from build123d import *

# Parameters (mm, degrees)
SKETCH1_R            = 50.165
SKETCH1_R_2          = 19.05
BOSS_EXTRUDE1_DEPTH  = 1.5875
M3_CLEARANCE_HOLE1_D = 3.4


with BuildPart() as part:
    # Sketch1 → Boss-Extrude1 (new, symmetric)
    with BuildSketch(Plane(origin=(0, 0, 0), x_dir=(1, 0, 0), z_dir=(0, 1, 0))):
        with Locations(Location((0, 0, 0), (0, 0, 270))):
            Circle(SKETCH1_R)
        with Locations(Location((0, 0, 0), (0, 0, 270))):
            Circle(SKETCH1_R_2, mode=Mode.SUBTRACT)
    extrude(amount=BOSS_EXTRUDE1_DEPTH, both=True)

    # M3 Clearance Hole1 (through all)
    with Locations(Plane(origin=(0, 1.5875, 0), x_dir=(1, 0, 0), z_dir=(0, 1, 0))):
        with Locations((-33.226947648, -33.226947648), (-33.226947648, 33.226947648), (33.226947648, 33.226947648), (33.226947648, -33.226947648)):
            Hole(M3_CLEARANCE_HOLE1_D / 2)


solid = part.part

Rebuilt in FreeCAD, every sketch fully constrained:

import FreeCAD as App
import Part
import Sketcher
Q = App.Units.Quantity

doc = App.newDocument("Part")
body = doc.addObject("PartDesign::Body", "Body")

# Sketch on XZ plane
sketch1 = body.newObject("Sketcher::SketchObject", "Sketch")
sketch1.AttachmentSupport = (doc.getObject("XZ_Plane"), [""])
sketch1.MapMode = "FlatFace"
sketch1.addGeometry(Part.Circle(App.Vector(0, 0, 0), App.Vector(0, 0, 1), 50), False)
sketch1.addGeometry(Part.Circle(App.Vector(0, 0, 0), App.Vector(0, 0, 1), 19), False)
sketch1.addConstraint(Sketcher.Constraint("Coincident", 0, 3, -1, 1))
sketch1.addConstraint(Sketcher.Constraint("Coincident", 1, 3, -1, 1))
sketch1.addConstraint(Sketcher.Constraint("Diameter", 1, Q("1.5 in")))
sketch1.addConstraint(Sketcher.Constraint("Diameter", 0, Q("3.95 in")))
pad1 = body.newObject("PartDesign::Pad", "Pad")
pad1.Profile = sketch1
pad1.Length = Q("0.125 in")
pad1.Midplane = True

# Sketch on XZ plane
sketch2 = body.newObject("Sketcher::SketchObject", "Sketch001")
sketch2.AttachmentSupport = (doc.getObject("XZ_Plane"), [""])
sketch2.MapMode = "FlatFace"
sketch2.AttachmentOffset = App.Placement(App.Vector(0, 0, -0.0625 * 25.4), App.Rotation())
sketch2.addGeometry(Part.Circle(App.Vector(-33.2, 33.2, 0), App.Vector(0, 0, 1), 1.7), False)
sketch2.addGeometry(Part.Circle(App.Vector(-33.2, -33.2, 0), App.Vector(0, 0, 1), 1.7), False)
sketch2.addGeometry(Part.Circle(App.Vector(33.2, -33.2, 0), App.Vector(0, 0, 1), 1.7), False)
sketch2.addGeometry(Part.Circle(App.Vector(33.2, 33.2, 0), App.Vector(0, 0, 1), 1.7), False)
sketch2.addConstraint(Sketcher.Constraint("Equal", 0, 1))
sketch2.addConstraint(Sketcher.Constraint("Equal", 1, 2))
sketch2.addConstraint(Sketcher.Constraint("Equal", 2, 3))
sketch2.addConstraint(Sketcher.Constraint("Symmetric", 0, 3, 2, 3, -1, 1))
sketch2.addConstraint(Sketcher.Constraint("Symmetric", 1, 3, 3, 3, -1, 1))
sketch2.addConstraint(Sketcher.Constraint("Symmetric", 1, 3, 2, 3, -2))
sketch2.addConstraint(Sketcher.Constraint("Diameter", 0, 3.4))
sketch2.addConstraint(Sketcher.Constraint("DistanceX", 0, 3, -1, 1, 33.226948))
sketch2.addConstraint(Sketcher.Constraint("DistanceY", -1, 1, 0, 3, 33.226948))
doc.recompute()
hole = body.newObject("PartDesign::Hole", "Hole")
hole.Profile = sketch2
hole.ThreadType = "None"
hole.Diameter = 3.4
hole.DepthType = "ThroughAll"
hole.Reversed = True

doc.recompute()
